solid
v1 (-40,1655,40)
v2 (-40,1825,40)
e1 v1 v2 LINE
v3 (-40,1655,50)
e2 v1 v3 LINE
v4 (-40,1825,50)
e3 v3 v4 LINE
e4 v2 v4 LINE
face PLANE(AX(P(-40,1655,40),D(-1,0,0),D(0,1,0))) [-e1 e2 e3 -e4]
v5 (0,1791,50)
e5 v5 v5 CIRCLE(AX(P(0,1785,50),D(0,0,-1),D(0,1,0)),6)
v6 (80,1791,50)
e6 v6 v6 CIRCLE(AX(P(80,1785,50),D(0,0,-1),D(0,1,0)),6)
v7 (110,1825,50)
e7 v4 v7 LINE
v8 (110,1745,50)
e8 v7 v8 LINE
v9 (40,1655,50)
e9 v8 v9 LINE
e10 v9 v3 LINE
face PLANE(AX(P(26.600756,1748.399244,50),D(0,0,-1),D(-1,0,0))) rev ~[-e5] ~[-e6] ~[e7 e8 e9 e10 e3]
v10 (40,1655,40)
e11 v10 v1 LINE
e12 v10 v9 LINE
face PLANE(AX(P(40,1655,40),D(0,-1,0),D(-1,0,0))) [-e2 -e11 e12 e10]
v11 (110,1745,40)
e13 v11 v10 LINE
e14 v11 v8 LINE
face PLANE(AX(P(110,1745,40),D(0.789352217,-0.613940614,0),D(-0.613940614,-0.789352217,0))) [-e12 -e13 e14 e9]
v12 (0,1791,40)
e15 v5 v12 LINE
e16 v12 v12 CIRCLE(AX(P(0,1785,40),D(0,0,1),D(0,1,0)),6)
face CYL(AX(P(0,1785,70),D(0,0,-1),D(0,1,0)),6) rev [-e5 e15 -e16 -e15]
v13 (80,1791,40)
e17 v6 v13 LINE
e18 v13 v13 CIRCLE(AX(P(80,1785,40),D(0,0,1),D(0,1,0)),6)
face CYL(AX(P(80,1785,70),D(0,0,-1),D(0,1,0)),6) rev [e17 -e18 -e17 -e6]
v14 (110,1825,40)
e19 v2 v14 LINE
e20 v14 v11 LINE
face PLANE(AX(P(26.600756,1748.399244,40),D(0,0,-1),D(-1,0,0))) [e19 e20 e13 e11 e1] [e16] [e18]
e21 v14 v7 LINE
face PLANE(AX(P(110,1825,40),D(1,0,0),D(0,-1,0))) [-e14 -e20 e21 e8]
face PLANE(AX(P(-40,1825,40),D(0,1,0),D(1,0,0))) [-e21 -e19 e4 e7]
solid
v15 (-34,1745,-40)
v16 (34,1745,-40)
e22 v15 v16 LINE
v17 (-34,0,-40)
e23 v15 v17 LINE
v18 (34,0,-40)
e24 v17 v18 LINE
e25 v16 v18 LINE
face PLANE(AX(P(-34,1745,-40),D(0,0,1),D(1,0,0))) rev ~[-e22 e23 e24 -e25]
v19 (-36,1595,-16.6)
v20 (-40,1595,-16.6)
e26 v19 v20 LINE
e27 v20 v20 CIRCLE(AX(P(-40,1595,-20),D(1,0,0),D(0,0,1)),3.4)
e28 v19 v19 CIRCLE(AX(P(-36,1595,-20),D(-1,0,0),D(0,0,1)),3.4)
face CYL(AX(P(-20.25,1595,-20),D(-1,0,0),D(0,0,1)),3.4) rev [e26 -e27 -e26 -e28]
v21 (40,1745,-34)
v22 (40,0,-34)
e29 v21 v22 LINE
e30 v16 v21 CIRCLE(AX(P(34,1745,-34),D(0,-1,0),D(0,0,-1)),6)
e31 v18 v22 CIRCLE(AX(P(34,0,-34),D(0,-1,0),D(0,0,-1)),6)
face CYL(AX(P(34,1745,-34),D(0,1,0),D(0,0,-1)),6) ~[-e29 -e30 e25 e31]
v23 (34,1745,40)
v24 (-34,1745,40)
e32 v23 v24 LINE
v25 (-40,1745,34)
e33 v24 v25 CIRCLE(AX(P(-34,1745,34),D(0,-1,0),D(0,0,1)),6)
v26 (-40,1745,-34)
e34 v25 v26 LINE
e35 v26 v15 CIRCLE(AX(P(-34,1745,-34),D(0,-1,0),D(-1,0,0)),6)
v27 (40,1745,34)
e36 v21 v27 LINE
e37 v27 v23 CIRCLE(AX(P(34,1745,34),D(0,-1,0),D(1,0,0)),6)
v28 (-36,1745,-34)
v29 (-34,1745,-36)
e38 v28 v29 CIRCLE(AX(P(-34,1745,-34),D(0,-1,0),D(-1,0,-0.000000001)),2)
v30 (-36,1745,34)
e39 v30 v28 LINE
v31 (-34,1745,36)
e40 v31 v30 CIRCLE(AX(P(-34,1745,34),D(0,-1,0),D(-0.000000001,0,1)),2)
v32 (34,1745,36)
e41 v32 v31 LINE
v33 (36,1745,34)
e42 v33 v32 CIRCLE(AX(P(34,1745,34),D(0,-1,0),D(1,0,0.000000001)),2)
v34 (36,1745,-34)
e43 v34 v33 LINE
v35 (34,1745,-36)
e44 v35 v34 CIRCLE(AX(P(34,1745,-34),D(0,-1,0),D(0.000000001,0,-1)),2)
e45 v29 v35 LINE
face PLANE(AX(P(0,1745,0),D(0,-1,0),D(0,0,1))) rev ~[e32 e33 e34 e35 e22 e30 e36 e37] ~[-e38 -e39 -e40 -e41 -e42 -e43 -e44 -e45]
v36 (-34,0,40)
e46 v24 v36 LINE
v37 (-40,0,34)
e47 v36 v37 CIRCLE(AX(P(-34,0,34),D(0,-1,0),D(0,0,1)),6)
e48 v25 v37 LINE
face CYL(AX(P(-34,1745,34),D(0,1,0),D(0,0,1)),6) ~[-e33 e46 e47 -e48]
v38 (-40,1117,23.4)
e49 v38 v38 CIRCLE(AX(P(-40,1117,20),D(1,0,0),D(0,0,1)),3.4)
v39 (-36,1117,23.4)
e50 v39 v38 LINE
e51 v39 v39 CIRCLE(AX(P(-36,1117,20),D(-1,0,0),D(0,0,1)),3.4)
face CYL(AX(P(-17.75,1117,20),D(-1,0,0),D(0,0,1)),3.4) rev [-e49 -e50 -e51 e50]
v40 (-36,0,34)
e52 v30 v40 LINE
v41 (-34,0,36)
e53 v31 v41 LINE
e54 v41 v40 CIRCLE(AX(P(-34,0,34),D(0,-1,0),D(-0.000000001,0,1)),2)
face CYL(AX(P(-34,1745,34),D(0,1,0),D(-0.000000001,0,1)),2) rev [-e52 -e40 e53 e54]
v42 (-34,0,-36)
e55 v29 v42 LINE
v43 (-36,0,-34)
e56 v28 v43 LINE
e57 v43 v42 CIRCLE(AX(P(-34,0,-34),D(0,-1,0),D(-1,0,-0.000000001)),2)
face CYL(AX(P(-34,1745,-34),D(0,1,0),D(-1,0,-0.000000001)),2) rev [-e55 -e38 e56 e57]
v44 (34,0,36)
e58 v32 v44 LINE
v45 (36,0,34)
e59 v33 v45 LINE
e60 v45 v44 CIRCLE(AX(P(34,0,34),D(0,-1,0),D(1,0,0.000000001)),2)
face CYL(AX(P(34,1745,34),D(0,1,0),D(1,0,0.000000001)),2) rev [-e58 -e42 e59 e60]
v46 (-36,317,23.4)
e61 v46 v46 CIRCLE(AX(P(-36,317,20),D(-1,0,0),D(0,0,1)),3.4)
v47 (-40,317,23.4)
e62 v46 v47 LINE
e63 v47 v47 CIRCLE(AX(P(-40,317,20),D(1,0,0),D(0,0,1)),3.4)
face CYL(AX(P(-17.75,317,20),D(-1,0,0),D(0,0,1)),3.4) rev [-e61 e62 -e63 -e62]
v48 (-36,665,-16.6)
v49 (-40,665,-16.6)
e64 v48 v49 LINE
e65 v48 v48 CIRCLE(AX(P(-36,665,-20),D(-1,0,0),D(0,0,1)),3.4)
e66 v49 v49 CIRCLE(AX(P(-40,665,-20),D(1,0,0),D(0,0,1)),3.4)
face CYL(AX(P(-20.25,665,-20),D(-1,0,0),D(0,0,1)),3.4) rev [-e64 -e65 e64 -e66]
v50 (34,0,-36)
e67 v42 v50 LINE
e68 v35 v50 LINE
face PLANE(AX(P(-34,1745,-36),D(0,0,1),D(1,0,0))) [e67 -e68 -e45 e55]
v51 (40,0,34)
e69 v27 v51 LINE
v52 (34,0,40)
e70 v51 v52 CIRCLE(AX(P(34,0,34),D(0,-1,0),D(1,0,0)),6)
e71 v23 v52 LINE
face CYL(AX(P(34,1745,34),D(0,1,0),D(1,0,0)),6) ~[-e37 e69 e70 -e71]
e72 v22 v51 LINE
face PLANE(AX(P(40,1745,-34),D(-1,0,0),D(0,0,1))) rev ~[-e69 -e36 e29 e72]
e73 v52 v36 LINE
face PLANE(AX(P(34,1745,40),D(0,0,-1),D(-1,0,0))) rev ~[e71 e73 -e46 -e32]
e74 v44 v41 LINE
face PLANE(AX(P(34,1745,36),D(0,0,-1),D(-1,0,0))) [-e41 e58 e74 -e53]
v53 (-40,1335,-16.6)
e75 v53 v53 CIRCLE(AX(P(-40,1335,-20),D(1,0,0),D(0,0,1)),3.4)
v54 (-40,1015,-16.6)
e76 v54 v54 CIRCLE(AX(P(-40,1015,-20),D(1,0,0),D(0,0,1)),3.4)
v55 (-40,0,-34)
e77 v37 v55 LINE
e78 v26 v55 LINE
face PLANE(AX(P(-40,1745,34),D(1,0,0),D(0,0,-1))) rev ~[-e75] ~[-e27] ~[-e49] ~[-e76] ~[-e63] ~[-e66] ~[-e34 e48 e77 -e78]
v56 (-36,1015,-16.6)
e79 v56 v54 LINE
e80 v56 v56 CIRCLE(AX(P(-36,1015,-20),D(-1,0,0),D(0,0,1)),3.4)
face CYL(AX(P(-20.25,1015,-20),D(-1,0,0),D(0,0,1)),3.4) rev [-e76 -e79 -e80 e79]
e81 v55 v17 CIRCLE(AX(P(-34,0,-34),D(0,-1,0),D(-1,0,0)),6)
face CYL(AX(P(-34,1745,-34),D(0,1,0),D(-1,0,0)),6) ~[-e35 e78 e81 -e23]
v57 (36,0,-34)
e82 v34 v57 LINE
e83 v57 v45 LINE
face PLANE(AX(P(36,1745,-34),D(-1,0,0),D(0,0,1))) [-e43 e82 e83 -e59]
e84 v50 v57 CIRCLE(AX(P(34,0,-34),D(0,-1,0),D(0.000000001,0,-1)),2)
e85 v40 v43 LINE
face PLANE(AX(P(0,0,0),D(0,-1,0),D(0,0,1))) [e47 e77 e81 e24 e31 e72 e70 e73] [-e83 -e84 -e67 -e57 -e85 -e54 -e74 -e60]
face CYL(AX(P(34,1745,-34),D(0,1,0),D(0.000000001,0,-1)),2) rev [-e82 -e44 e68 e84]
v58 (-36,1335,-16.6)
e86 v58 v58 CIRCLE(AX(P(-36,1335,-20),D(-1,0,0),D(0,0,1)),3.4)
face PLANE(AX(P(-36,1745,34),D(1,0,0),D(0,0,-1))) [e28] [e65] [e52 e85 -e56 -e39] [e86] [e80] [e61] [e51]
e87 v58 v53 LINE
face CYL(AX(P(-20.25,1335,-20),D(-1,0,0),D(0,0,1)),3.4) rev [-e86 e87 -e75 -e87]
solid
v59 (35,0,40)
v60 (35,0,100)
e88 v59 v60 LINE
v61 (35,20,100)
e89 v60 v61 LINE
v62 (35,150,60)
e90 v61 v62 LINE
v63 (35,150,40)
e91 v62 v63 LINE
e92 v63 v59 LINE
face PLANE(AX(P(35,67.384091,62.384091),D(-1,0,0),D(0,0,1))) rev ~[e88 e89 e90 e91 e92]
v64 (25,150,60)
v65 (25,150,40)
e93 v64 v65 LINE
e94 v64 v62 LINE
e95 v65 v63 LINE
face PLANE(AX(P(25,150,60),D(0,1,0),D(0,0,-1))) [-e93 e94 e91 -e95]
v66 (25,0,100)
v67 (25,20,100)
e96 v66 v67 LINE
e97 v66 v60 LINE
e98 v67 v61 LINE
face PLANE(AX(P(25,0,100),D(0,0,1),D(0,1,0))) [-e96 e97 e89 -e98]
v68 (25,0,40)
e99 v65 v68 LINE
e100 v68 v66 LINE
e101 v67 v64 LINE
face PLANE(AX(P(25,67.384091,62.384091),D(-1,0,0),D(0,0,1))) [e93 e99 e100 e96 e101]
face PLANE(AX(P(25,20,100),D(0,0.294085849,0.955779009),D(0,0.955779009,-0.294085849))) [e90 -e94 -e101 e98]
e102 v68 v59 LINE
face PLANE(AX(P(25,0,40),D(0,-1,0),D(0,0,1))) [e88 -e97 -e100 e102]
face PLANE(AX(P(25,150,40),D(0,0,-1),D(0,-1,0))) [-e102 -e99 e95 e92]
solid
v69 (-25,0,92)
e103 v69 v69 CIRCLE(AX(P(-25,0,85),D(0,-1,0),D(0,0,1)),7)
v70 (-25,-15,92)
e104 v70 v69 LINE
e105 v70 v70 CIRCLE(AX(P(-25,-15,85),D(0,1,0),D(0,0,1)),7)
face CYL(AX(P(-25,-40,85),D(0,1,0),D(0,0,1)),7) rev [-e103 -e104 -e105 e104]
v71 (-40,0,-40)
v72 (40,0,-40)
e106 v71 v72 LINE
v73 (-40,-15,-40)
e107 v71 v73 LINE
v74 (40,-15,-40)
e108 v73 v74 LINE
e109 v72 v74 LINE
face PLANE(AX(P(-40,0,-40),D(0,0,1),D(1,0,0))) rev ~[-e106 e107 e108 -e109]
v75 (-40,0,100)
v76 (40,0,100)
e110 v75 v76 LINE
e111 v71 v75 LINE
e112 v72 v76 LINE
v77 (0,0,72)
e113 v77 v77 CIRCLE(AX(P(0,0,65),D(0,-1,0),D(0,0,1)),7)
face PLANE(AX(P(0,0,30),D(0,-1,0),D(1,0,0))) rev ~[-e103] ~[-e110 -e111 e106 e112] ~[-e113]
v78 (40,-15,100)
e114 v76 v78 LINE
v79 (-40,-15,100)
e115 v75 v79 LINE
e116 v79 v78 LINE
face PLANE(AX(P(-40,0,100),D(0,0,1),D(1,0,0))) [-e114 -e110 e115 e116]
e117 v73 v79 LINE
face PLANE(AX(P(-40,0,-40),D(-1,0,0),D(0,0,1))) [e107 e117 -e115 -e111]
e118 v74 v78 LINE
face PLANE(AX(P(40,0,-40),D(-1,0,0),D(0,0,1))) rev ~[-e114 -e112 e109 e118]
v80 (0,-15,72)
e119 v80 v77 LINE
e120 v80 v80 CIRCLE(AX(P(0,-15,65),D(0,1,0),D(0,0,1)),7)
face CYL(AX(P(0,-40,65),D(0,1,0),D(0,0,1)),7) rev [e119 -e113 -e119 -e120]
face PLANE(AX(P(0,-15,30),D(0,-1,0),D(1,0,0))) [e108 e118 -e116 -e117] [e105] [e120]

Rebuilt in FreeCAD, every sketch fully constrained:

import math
import FreeCAD as App
import Part
import Sketcher
from FreeCAD import Vector
Q = App.Units.Quantity


def add_polygon(sketch, points):
    """Adds a closed chain of lines whose ends are joined by coincident constraints."""
    first, n = sketch.GeometryCount, len(points)
    for a, b in zip(points, points[1:] + points[:1]):
        sketch.addGeometry(Part.LineSegment(App.Vector(*a, 0), App.Vector(*b, 0)), False)
    for i in range(n):
        sketch.addConstraint(Sketcher.Constraint("Coincident", first + i, 2, first + (i + 1) % n, 1))

doc = App.newDocument("Part")
body = doc.addObject("PartDesign::Body", "Body")

sketch1 = doc.addObject("Sketcher::SketchObject", "Sketch")
body.addObject(sketch1)
sketch1.AttachmentSupport = (doc.XZ_Plane, [""])
sketch1.MapMode = "FlatFace"
sketch1.AttachmentOffset = App.Placement(Vector(0, 0, -1745), App.Rotation())
sketch1.addGeometry([
    Part.LineSegment(Vector(40, -34, 0), Vector(40, 34, 0)),
    Part.ArcOfCircle(Part.Circle(Vector(34, 34, 0), Vector(0, 0, 1), 6), math.radians(0), math.radians(90)),
    Part.LineSegment(Vector(34, 40, 0), Vector(-34, 40, 0)),
    Part.ArcOfCircle(Part.Circle(Vector(-34, 34, 0), Vector(0, 0, 1), 6), math.radians(90), math.radians(180)),
    Part.LineSegment(Vector(-40, 34, 0), Vector(-40, -34, 0)),
    Part.ArcOfCircle(Part.Circle(Vector(-34, -34, 0), Vector(0, 0, 1), 6), math.radians(180), math.radians(270)),
    Part.LineSegment(Vector(-34, -40, 0), Vector(34, -40, 0)),
    Part.ArcOfCircle(Part.Circle(Vector(34, -34, 0), Vector(0, 0, 1), 6), math.radians(-90), math.radians(0)),
    Part.LineSegment(Vector(36, 34, 0), Vector(36, -34, 0)),
    Part.ArcOfCircle(Part.Circle(Vector(34, -34, 0), Vector(0, 0, 1), 2), math.radians(-90), math.radians(0)),
    Part.LineSegment(Vector(34, -36, 0), Vector(-34, -36, 0)),
    Part.ArcOfCircle(Part.Circle(Vector(-34, -34, 0), Vector(0, 0, 1), 2), math.radians(-180), math.radians(-90)),
    Part.LineSegment(Vector(-36, -34, 0), Vector(-36, 34, 0)),
    Part.ArcOfCircle(Part.Circle(Vector(-34, 34, 0), Vector(0, 0, 1), 2), math.radians(90), math.radians(180)),
    Part.LineSegment(Vector(-34, 36, 0), Vector(34, 36, 0)),
    Part.ArcOfCircle(Part.Circle(Vector(34, 34, 0), Vector(0, 0, 1), 2), math.radians(0), math.radians(90)),
], False)
sketch1.addConstraint([
    Sketcher.Constraint("Tangent", 0, 2, 1, 1),
    Sketcher.Constraint("Tangent", 1, 2, 2, 1),
    Sketcher.Constraint("Tangent", 2, 2, 3, 1),
    Sketcher.Constraint("Tangent", 3, 2, 4, 1),
    Sketcher.Constraint("Tangent", 4, 2, 5, 1),
    Sketcher.Constraint("Tangent", 5, 2, 6, 1),
    Sketcher.Constraint("Tangent", 6, 2, 7, 1),
    Sketcher.Constraint("Tangent", 7, 2, 0, 1),
    Sketcher.Constraint("Tangent", 8, 2, 9, 2),
    Sketcher.Constraint("Tangent", 9, 1, 10, 1),
    Sketcher.Constraint("Tangent", 10, 2, 11, 2),
    Sketcher.Constraint("Tangent", 11, 1, 12, 1),
    Sketcher.Constraint("Tangent", 12, 2, 13, 2),
    Sketcher.Constraint("Tangent", 13, 1, 14, 1),
    Sketcher.Constraint("Tangent", 14, 2, 15, 2),
    Sketcher.Constraint("Tangent", 15, 1, 8, 1),
    Sketcher.Constraint("Vertical", 0),
    Sketcher.Constraint("Horizontal", 2),
    Sketcher.Constraint("Vertical", 4),
    Sketcher.Constraint("Horizontal", 6),
    Sketcher.Constraint("Vertical", 8),
    Sketcher.Constraint("Horizontal", 10),
    Sketcher.Constraint("Vertical", 12),
    Sketcher.Constraint("Horizontal", 14),
    Sketcher.Constraint("Coincident", 9, 3, 7, 3),
    Sketcher.Constraint("Coincident", 11, 3, 5, 3),
    Sketcher.Constraint("Coincident", 13, 3, 3, 3),
    Sketcher.Constraint("Equal", 1, 3),
    Sketcher.Constraint("Equal", 3, 5),
    Sketcher.Constraint("Equal", 5, 7),
    Sketcher.Constraint("Equal", 13, 15),
    Sketcher.Constraint("Symmetric", 1, 3, 5, 3, -1, 1),
    Sketcher.Constraint("Equal", 14, 0),
    Sketcher.Constraint("Radius", 1, 6.0),
    Sketcher.Constraint("Radius", 9, 2.0),
    Sketcher.Constraint("DistanceX", 2, 2, 2, 1, 68.0),
])
pad1 = doc.addObject("PartDesign::Pad", "Pad")
body.addObject(pad1)
pad1.Profile = sketch1
pad1.Length = 1745

sketch2 = doc.addObject("Sketcher::SketchObject", "Sketch001")
body.addObject(sketch2)
sketch2.AttachmentSupport = (doc.XZ_Plane, [""])
sketch2.MapMode = "FlatFace"
sketch2.AttachmentOffset = App.Placement(Vector(0, 0, -665), App.Rotation())
add_polygon(sketch2, [(-18.2, -20), (-40, -20), (-40, -16.6), (-20.2, -16.6)])
sketch2.addGeometry(Part.LineSegment(Vector(-40, -20, 0), Vector(-18.2, -20, 0)), True)
sketch2.addConstraint([
    Sketcher.Constraint("Horizontal", 0),
    Sketcher.Constraint("Vertical", 1),
    Sketcher.Constraint("Horizontal", 2),
    Sketcher.Constraint("Horizontal", 4),
    Sketcher.Constraint("Coincident", 4, 1, 0, 2),
    Sketcher.Constraint("Equal", 0, 4),
    Sketcher.Constraint("Angle", 3, Q("-59 deg")),
    Sketcher.Constraint("DistanceY", 1, 1, 1, 2, 3.4),
    Sketcher.Constraint("DistanceX", 0, 2, -1, 1, 40.0),
    Sketcher.Constraint("DistanceY", 0, 2, -1, 1, 20.0),
    Sketcher.Constraint("DistanceX", 2, 1, 2, 2, 19.75),
])
groove = doc.addObject("PartDesign::Groove", "Groove")
body.addObject(groove)
groove.Profile = sketch2
groove.ReferenceAxis = (sketch2, ["Axis0"])
groove.Angle = 360
doc.recompute()

linearpattern = doc.addObject("PartDesign::LinearPattern", "LinearPattern")
body.addObject(linearpattern)
linearpattern.Originals = [groove]
linearpattern.Direction = (doc.Y_Axis, [""])
linearpattern.Mode = "offset"
linearpattern.Offset = 670
linearpattern.Occurrences = 2
body.Tip = linearpattern
doc.recompute()

linearpattern2 = doc.addObject("PartDesign::LinearPattern", "LinearPattern001")
body.addObject(linearpattern2)
linearpattern2.Originals = [groove]
linearpattern2.Direction = (doc.Y_Axis, [""])
linearpattern2.Mode = "offset"
linearpattern2.Offset = 350
linearpattern2.Occurrences = 2
body.Tip = linearpattern2
doc.recompute()

linearpattern3 = doc.addObject("PartDesign::LinearPattern", "LinearPattern002")
body.addObject(linearpattern3)
linearpattern3.Originals = [groove]
linearpattern3.Direction = (doc.Y_Axis, [""])
linearpattern3.Mode = "offset"
linearpattern3.Offset = 930
linearpattern3.Occurrences = 2
body.Tip = linearpattern3

sketch3 = doc.addObject("Sketcher::SketchObject", "Sketch002")
body.addObject(sketch3)
sketch3.AttachmentSupport = (doc.XZ_Plane, [""])
sketch3.MapMode = "FlatFace"
sketch3.AttachmentOffset = App.Placement(Vector(0, 0, -1117), App.Rotation())
add_polygon(sketch3, [(-15.7, 20), (-40, 20), (-40, 23.4), (-17.8, 23.4)])
sketch3.addGeometry(Part.LineSegment(Vector(-40, 20, 0), Vector(-15.7, 20, 0)), True)
sketch3.addConstraint([
    Sketcher.Constraint("Horizontal", 0),
    Sketcher.Constraint("Vertical", 1),
    Sketcher.Constraint("Horizontal", 2),
    Sketcher.Constraint("Horizontal", 4),
    Sketcher.Constraint("Coincident", 4, 1, 0, 2),
    Sketcher.Constraint("Equal", 0, 4),
    Sketcher.Constraint("Angle", 3, Q("-59 deg")),
    Sketcher.Constraint("DistanceY", 1, 1, 1, 2, 3.4),
    Sketcher.Constraint("DistanceX", 0, 2, -1, 1, 40.0),
    Sketcher.Constraint("DistanceY", -1, 1, 0, 2, 20.0),
    Sketcher.Constraint("DistanceX", 2, 1, 2, 2, 22.25),
])
groove2 = doc.addObject("PartDesign::Groove", "Groove001")
body.addObject(groove2)
groove2.Profile = sketch3
groove2.ReferenceAxis = (sketch3, ["Axis0"])
groove2.Angle = 360
doc.recompute()

linearpattern4 = doc.addObject("PartDesign::LinearPattern", "LinearPattern003")
body.addObject(linearpattern4)
linearpattern4.Originals = [groove2]
linearpattern4.Direction = (doc.Y_Axis, [""])
linearpattern4.Mode = "offset"
linearpattern4.Offset = 800
linearpattern4.Occurrences = 2
linearpattern4.Reversed = True
body.Tip = linearpattern4
body2 = doc.addObject("PartDesign::Body", "Body001")

sketch4 = doc.addObject("Sketcher::SketchObject", "Sketch003")
body2.addObject(sketch4)
sketch4.AttachmentSupport = (doc.getObject("XZ_Plane001"), [""])
sketch4.MapMode = "FlatFace"
add_polygon(sketch4, [(-40, 100), (-40, -40), (40, -40), (40, 100)])
sketch4.addConstraint([
    Sketcher.Constraint("Vertical", 0),
    Sketcher.Constraint("Horizontal", 1),
    Sketcher.Constraint("Vertical", 2),
    Sketcher.Constraint("Horizontal", 3),
    Sketcher.Constraint("DistanceX", 1, 1, 1, 2, 80.0),
    Sketcher.Constraint("DistanceY", 0, 2, 0, 1, 140.0),
    Sketcher.Constraint("DistanceX", 0, 2, -1, 1, 40.0),
    Sketcher.Constraint("DistanceY", 0, 2, -1, 1, 40.0),
])
pad2 = doc.addObject("PartDesign::Pad", "Pad001")
body2.addObject(pad2)
pad2.Profile = sketch4
pad2.Length = 15

sketch5 = doc.addObject("Sketcher::SketchObject", "Sketch004")
body2.addObject(sketch5)
sketch5.AttachmentSupport = (doc.getObject("YZ_Plane001"), [""])
sketch5.MapMode = "FlatFace"
sketch5.AttachmentOffset = App.Placement(Vector(0, 0, -25), App.Rotation())
add_polygon(sketch5, [(-44, 85), (0, 85), (0, 92), (-40, 92)])
sketch5.addGeometry(Part.LineSegment(Vector(0, 85, 0), Vector(-44, 85, 0)), True)
sketch5.addConstraint([
    Sketcher.Constraint("Horizontal", 0),
    Sketcher.Constraint("Vertical", 1),
    Sketcher.Constraint("Horizontal", 2),
    Sketcher.Constraint("Horizontal", 4),
    Sketcher.Constraint("Coincident", 4, 1, 0, 2),
    Sketcher.Constraint("PointOnObject", 0, 2, -2),
    Sketcher.Constraint("Equal", 0, 4),
    Sketcher.Constraint("DistanceX", 2, 2, 2, 1, 40.0),
    Sketcher.Constraint("DistanceY", 1, 1, 1, 2, 7.0),
    Sketcher.Constraint("Angle", 3, Q("-121 deg")),
    Sketcher.Constraint("DistanceY", -1, 1, 0, 2, 85.0),
])
groove3 = doc.addObject("PartDesign::Groove", "Groove002")
body2.addObject(groove3)
groove3.Profile = sketch5
groove3.ReferenceAxis = (sketch5, ["Axis0"])
groove3.Angle = 360
doc.recompute()

datumline = doc.addObject("PartDesign::Line", "DatumLine")
body2.addObject(datumline)
datumline.Placement = App.Placement(Vector(0, 0, 0), App.Rotation(Vector(0, 0, 1), Vector(0.780868809, 0, -0.624695048)))
linearpattern5 = doc.addObject("PartDesign::LinearPattern", "LinearPattern004")
body2.addObject(linearpattern5)
linearpattern5.Originals = [groove3]
linearpattern5.Direction = (datumline, [""])
linearpattern5.Mode = "offset"
linearpattern5.Offset = 32.015621
linearpattern5.Occurrences = 2
body2.Tip = linearpattern5
body3 = doc.addObject("PartDesign::Body", "Body002")

sketch6 = doc.addObject("Sketcher::SketchObject", "Sketch005")
body3.addObject(sketch6)
sketch6.AttachmentSupport = (doc.getObject("YZ_Plane002"), [""])
sketch6.MapMode = "FlatFace"
sketch6.AttachmentOffset = App.Placement(Vector(0, 0, 25), App.Rotation())
add_polygon(sketch6, [(150, 60), (20, 100), (0, 100), (0, 40), (150, 40)])
sketch6.addConstraint([
    Sketcher.Constraint("Horizontal", 1),
    Sketcher.Constraint("Vertical", 2),
    Sketcher.Constraint("Horizontal", 3),
    Sketcher.Constraint("Vertical", 4),
    Sketcher.Constraint("PointOnObject", 1, 2, -2),
    Sketcher.Constraint("Equal", 1, 4),
    Sketcher.Constraint("DistanceX", 1, 2, 1, 1, 20.0),
    Sketcher.Constraint("DistanceX", 3, 1, 3, 2, 150.0),
    Sketcher.Constraint("DistanceY", 2, 2, 2, 1, 60.0),
    Sketcher.Constraint("DistanceY", -1, 1, 0, 2, 100.0),
])
pad3 = doc.addObject("PartDesign::Pad", "Pad002")
body3.addObject(pad3)
pad3.Profile = sketch6
pad3.Length = 10
body4 = doc.addObject("PartDesign::Body", "Body003")

sketch7 = doc.addObject("Sketcher::SketchObject", "Sketch006")
body4.addObject(sketch7)
sketch7.AttachmentSupport = (doc.getObject("XY_Plane003"), [""])
sketch7.MapMode = "FlatFace"
sketch7.AttachmentOffset = App.Placement(Vector(0, 0, 40), App.Rotation())
add_polygon(sketch7, [(-40, 1825), (-40, 1655), (40, 1655), (110, 1745), (110, 1825)])
sketch7.addConstraint([
    Sketcher.Constraint("Vertical", 0),
    Sketcher.Constraint("Horizontal", 1),
    Sketcher.Constraint("Vertical", 3),
    Sketcher.Constraint("Horizontal", 4),
    Sketcher.Constraint("Equal", 1, 3),
    Sketcher.Constraint("DistanceX", 1, 1, 1, 2, 80.0),
    Sketcher.Constraint("DistanceX", 4, 2, 4, 1, 150.0),
    Sketcher.Constraint("DistanceY", 0, 2, 0, 1, 170.0),
    Sketcher.Constraint("DistanceX", 0, 2, -1, 1, 40.0),
    Sketcher.Constraint("DistanceY", -1, 1, 0, 2, 1655.0),
])
pad4 = doc.addObject("PartDesign::Pad", "Pad003")
body4.addObject(pad4)
pad4.Profile = sketch7
pad4.Length = 10

sketch8 = doc.addObject("Sketcher::SketchObject", "Sketch007")
body4.addObject(sketch8)
sketch8.AttachmentSupport = (doc.getObject("YZ_Plane003"), [""])
sketch8.MapMode = "FlatFace"
sketch8.AttachmentOffset = App.Placement(Vector(0, 0, 80), App.Rotation())
add_polygon(sketch8, [(1785, 74), (1785, 40), (1791, 40), (1791, 70)])
sketch8.addGeometry(Part.LineSegment(Vector(1785, 40, 0), Vector(1785, 74, 0)), True)
sketch8.addConstraint([
    Sketcher.Constraint("Vertical", 0),
    Sketcher.Constraint("Horizontal", 1),
    Sketcher.Constraint("Vertical", 2),
    Sketcher.Constraint("Vertical", 4),
    Sketcher.Constraint("Coincident", 4, 1, 0, 2),
    Sketcher.Constraint("Equal", 0, 4),
    Sketcher.Constraint("DistanceX", 1, 1, 1, 2, 6.0),
    Sketcher.Constraint("DistanceY", 2, 1, 2, 2, 30.0),
    Sketcher.Constraint("Angle", 3, Q("149 deg")),
    Sketcher.Constraint("DistanceX", -1, 1, 0, 2, 1785.0),
    Sketcher.Constraint("DistanceY", -1, 1, 0, 2, 40.0),
])
groove4 = doc.addObject("PartDesign::Groove", "Groove003")
body4.addObject(groove4)
groove4.Profile = sketch8
groove4.ReferenceAxis = (sketch8, ["Axis0"])
groove4.Angle = 360
doc.recompute()

linearpattern6 = doc.addObject("PartDesign::LinearPattern", "LinearPattern005")
body4.addObject(linearpattern6)
linearpattern6.Originals = [groove4]
linearpattern6.Direction = (doc.getObject("X_Axis003"), [""])
linearpattern6.Mode = "offset"
linearpattern6.Offset = 80
linearpattern6.Occurrences = 2
linearpattern6.Reversed = True
body4.Tip = linearpattern6

doc.recompute()
